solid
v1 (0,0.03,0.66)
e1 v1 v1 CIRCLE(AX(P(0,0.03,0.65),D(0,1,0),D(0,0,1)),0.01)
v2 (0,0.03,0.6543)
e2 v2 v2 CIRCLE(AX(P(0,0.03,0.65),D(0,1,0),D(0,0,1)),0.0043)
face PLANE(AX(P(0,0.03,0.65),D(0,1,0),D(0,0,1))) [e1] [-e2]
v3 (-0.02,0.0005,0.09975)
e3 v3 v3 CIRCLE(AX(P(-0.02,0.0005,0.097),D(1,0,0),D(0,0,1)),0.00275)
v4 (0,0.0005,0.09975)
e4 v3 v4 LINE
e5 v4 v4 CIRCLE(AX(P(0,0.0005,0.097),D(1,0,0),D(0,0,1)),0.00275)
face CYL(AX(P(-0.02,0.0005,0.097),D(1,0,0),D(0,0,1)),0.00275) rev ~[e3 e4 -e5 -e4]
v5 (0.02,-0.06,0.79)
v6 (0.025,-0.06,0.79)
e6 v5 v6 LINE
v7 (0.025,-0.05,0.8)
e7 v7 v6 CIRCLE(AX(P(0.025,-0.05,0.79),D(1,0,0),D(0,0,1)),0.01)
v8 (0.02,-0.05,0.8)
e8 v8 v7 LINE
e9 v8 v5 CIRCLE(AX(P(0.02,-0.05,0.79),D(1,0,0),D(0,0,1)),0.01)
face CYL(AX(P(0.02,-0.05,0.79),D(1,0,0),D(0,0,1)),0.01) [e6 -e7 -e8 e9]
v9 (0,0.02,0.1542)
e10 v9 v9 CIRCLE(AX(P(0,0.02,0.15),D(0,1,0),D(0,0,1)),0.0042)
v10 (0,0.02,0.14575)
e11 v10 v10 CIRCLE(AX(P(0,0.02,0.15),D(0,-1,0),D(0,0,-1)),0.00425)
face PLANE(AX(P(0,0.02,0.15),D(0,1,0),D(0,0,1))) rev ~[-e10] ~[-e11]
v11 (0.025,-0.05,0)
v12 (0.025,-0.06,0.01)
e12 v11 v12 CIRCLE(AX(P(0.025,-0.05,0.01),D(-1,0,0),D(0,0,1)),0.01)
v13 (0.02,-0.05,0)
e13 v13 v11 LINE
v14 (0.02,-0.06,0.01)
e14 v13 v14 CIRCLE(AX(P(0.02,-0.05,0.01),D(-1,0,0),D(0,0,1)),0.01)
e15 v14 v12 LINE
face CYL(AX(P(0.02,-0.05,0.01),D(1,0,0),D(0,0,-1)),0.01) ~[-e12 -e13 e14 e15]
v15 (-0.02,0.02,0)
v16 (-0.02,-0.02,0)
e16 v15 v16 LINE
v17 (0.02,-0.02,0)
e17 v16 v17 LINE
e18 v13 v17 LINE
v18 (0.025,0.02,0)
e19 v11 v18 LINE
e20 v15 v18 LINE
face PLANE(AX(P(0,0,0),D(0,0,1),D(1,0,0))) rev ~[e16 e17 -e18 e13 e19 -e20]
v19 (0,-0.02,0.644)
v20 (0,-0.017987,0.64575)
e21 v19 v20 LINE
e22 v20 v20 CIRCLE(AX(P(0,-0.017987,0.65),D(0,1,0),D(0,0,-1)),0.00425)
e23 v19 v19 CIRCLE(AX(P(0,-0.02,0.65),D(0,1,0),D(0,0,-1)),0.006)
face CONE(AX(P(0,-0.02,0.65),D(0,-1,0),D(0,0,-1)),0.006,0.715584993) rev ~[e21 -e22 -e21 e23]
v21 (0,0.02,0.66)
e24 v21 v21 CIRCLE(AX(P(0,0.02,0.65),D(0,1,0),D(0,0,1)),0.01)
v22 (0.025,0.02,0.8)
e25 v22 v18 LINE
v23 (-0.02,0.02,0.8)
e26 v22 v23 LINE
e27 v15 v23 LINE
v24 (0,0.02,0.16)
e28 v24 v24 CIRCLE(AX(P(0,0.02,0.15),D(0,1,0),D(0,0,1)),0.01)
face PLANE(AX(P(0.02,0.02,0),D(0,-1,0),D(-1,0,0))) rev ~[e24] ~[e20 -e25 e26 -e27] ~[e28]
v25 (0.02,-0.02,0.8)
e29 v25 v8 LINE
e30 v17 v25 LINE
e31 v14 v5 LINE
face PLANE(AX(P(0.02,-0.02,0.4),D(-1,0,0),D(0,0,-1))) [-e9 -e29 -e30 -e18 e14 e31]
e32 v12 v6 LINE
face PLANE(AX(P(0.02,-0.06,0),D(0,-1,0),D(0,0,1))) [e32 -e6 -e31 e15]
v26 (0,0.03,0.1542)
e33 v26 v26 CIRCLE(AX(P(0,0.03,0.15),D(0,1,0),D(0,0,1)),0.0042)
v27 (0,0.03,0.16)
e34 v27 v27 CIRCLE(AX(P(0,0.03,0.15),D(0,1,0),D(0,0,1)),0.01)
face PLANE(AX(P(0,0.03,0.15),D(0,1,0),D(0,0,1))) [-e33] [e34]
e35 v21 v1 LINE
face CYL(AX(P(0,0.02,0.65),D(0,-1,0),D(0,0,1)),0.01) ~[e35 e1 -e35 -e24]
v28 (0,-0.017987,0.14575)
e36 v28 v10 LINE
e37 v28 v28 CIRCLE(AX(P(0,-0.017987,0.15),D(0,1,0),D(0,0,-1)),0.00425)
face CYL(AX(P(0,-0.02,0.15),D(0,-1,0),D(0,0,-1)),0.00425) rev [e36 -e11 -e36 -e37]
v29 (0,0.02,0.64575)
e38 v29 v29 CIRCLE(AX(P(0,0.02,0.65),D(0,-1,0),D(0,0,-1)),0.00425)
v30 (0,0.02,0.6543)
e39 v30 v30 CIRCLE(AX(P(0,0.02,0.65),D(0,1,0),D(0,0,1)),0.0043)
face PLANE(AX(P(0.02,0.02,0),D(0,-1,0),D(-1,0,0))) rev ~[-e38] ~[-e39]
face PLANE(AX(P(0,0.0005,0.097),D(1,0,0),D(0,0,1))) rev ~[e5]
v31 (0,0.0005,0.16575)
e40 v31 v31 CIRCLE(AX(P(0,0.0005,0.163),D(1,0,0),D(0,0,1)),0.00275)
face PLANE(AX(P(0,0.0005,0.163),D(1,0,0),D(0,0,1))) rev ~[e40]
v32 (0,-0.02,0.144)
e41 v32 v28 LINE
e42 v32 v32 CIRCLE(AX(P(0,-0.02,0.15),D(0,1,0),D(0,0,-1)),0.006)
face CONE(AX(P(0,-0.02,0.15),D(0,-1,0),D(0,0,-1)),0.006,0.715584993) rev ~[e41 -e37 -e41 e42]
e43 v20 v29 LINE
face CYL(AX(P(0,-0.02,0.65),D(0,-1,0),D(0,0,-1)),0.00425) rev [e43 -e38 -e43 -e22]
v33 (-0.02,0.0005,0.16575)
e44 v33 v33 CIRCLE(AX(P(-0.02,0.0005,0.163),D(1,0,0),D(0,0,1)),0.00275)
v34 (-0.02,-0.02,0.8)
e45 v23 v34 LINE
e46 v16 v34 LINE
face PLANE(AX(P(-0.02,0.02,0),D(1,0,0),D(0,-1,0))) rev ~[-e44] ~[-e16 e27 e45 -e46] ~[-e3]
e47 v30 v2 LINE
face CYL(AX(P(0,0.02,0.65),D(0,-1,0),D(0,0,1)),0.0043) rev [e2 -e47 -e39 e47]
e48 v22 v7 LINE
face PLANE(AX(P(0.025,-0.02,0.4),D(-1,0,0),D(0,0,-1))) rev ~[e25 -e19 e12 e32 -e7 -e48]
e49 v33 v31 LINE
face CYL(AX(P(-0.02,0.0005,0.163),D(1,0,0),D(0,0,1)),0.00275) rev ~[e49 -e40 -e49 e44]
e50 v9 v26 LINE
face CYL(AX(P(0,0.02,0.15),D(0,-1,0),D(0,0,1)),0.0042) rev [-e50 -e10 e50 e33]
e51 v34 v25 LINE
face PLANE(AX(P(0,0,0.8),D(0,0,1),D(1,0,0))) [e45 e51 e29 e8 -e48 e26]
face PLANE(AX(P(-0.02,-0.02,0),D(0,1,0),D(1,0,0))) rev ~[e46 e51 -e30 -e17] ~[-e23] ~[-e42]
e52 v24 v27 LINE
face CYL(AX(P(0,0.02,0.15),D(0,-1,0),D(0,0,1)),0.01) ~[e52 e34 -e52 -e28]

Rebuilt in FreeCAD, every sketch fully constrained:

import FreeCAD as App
import Part
import Sketcher

V = App.Vector


def edges_at(feature, points):
    """Names of the edges that pass closest to the given points."""
    edges = feature.Shape.Edges
    near = lambda p: min(range(len(edges)), key=lambda i: edges[i].distToShape(Part.Vertex(*p))[0])
    return sorted({f"Edge{near(p) + 1}" for p in points})

doc = App.newDocument("Part")
body = doc.addObject("PartDesign::Body", "Body")

# Sketch on XY plane
sketch1 = body.newObject("Sketcher::SketchObject", "Sketch")
sketch1.AttachmentSupport = (doc.getObject("XY_Plane"), [""])
sketch1.MapMode = "FlatFace"
sketch1.addGeometry(Part.LineSegment(V(-0.02, 0.02, 0), V(-0.02, -0.02, 0)), False)
sketch1.addGeometry(Part.LineSegment(V(-0.02, -0.02, 0), V(0.02, -0.02, 0)), False)
sketch1.addGeometry(Part.LineSegment(V(0.02, -0.02, 0), V(0.02, 0.02, 0)), False)
sketch1.addGeometry(Part.LineSegment(V(0.02, 0.02, 0), V(-0.02, 0.02, 0)), False)
sketch1.addConstraint(Sketcher.Constraint("Coincident", 0, 2, 1, 1))
sketch1.addConstraint(Sketcher.Constraint("Coincident", 1, 2, 2, 1))
sketch1.addConstraint(Sketcher.Constraint("Coincident", 2, 2, 3, 1))
sketch1.addConstraint(Sketcher.Constraint("Coincident", 3, 2, 0, 1))
sketch1.addConstraint(Sketcher.Constraint("Vertical", 0))
sketch1.addConstraint(Sketcher.Constraint("Horizontal", 1))
sketch1.addConstraint(Sketcher.Constraint("Vertical", 2))
sketch1.addConstraint(Sketcher.Constraint("Horizontal", 3))
sketch1.addConstraint(Sketcher.Constraint("Symmetric", 0, 2, 2, 2, -1, 1))
sketch1.addConstraint(Sketcher.Constraint("Equal", 3, 0))
sketch1.addConstraint(Sketcher.Constraint("DistanceX", 0, 2, -1, 1, 0.02))
pad1 = body.newObject("PartDesign::Pad", "Pad")
pad1.Profile = sketch1
pad1.Length = 0.8

# Sketch on YZ plane
sketch2 = body.newObject("Sketcher::SketchObject", "Sketch001")
sketch2.AttachmentSupport = (doc.getObject("YZ_Plane"), [""])
sketch2.MapMode = "FlatFace"
sketch2.AttachmentOffset = App.Placement(V(0, 0, 0.02), App.Rotation())
sketch2.addGeometry(Part.LineSegment(V(0.02, 0, 0), V(0.02, 0.8, 0)), False)
sketch2.addGeometry(Part.LineSegment(V(0.02, 0.8, 0), V(-0.06, 0.8, 0)), False)
sketch2.addGeometry(Part.LineSegment(V(-0.06, 0.8, 0), V(-0.06, 0, 0)), False)
sketch2.addGeometry(Part.LineSegment(V(-0.06, 0, 0), V(0.02, 0, 0)), False)
sketch2.addConstraint(Sketcher.Constraint("Coincident", 0, 2, 1, 1))
sketch2.addConstraint(Sketcher.Constraint("Coincident", 1, 2, 2, 1))
sketch2.addConstraint(Sketcher.Constraint("Coincident", 2, 2, 3, 1))
sketch2.addConstraint(Sketcher.Constraint("Coincident", 3, 2, 0, 1))
sketch2.addConstraint(Sketcher.Constraint("Vertical", 0))
sketch2.addConstraint(Sketcher.Constraint("Horizontal", 1))
sketch2.addConstraint(Sketcher.Constraint("Vertical", 2))
sketch2.addConstraint(Sketcher.Constraint("Horizontal", 3))
sketch2.addConstraint(Sketcher.Constraint("PointOnObject", 2, 2, -1))
sketch2.addConstraint(Sketcher.Constraint("DistanceY", 0, 1, 0, 2, 0.8))
sketch2.addConstraint(Sketcher.Constraint("DistanceX", 1, 2, 1, 1, 0.08))
sketch2.addConstraint(Sketcher.Constraint("DistanceX", -1, 1, 0, 2, 0.02))
pad2 = body.newObject("PartDesign::Pad", "Pad001")
pad2.Profile = sketch2
pad2.Length = 0.005
doc.recompute()

fillet = body.newObject("PartDesign::Fillet", "Fillet")
fillet.Base = (pad2, edges_at(pad2, [(0.022, -0.06, 0), (0.022, -0.06, 0.8)]))
fillet.Radius = 0.01

# Sketch on XZ plane
sketch3 = body.newObject("Sketcher::SketchObject", "Sketch002")
sketch3.AttachmentSupport = (doc.getObject("XZ_Plane"), [""])
sketch3.MapMode = "FlatFace"
sketch3.AttachmentOffset = App.Placement(V(0, 0, 0.02), App.Rotation())
sketch3.addGeometry(Part.Circle(V(0, 0.65, 0), V(0, 0, 1), 0.00425), False)
sketch3.addConstraint(Sketcher.Constraint("PointOnObject", 0, 3, -2))
sketch3.addConstraint(Sketcher.Constraint("Diameter", 0, 0.0085))
sketch3.addConstraint(Sketcher.Constraint("DistanceY", -1, 1, 0, 3, 0.65))
doc.recompute()
hole = body.newObject("PartDesign::Hole", "Hole")
hole.Profile = sketch3
hole.ThreadType = "None"
hole.Diameter = 0.0085
hole.DepthType = "ThroughAll"
hole.HoleCutType = "Countersink"
hole.HoleCutDiameter = 0.012
hole.HoleCutCountersinkAngle = 82

# Sketch on XZ plane
sketch4 = body.newObject("Sketcher::SketchObject", "Sketch003")
sketch4.AttachmentSupport = (doc.getObject("XZ_Plane"), [""])
sketch4.MapMode = "FlatFace"
sketch4.AttachmentOffset = App.Placement(V(0, 0, 0.02), App.Rotation())
sketch4.addGeometry(Part.Circle(V(0, 0.15, 0), V(0, 0, 1), 0.00425), False)
sketch4.addConstraint(Sketcher.Constraint("PointOnObject", 0, 3, -2))
sketch4.addConstraint(Sketcher.Constraint("Diameter", 0, 0.0085))
sketch4.addConstraint(Sketcher.Constraint("DistanceY", -1, 1, 0, 3, 0.15))
doc.recompute()
hole2 = body.newObject("PartDesign::Hole", "Hole001")
hole2.Profile = sketch4
hole2.ThreadType = "None"
hole2.Diameter = 0.0085
hole2.DepthType = "ThroughAll"
hole2.HoleCutType = "Countersink"
hole2.HoleCutDiameter = 0.012
hole2.HoleCutCountersinkAngle = 82

# Sketch on XZ plane
sketch5 = body.newObject("Sketcher::SketchObject", "Sketch004")
sketch5.AttachmentSupport = (doc.getObject("XZ_Plane"), [""])
sketch5.MapMode = "FlatFace"
sketch5.AttachmentOffset = App.Placement(V(0, 0, -0.02), App.Rotation())
sketch5.addGeometry(Part.Circle(V(0, 0.15, 0), V(0, 0, 1), 0.01), False)
sketch5.addGeometry(Part.Circle(V(0, 0.15, 0), V(0, 0, 1), 0.0042), False)
sketch5.addGeometry(Part.Circle(V(0, 0.65, 0), V(0, 0, 1), 0.01), False)
sketch5.addGeometry(Part.Circle(V(0, 0.65, 0), V(0, 0, 1), 0.0043), False)
sketch5.addConstraint(Sketcher.Constraint("Coincident", 1, 3, 0, 3))
sketch5.addConstraint(Sketcher.Constraint("Coincident", 3, 3, 2, 3))
sketch5.addConstraint(Sketcher.Constraint("Equal", 0, 2))
sketch5.addConstraint(Sketcher.Constraint("Equal", 1, 3))
sketch5.addConstraint(Sketcher.Constraint("PointOnObject", 0, 3, -2))
sketch5.addConstraint(Sketcher.Constraint("PointOnObject", 2, 3, -2))
sketch5.addConstraint(Sketcher.Constraint("Diameter", 0, 0.02))
sketch5.addConstraint(Sketcher.Constraint("Diameter", 1, 0.0084))
sketch5.addConstraint(Sketcher.Constraint("DistanceY", 0, 3, 2, 3, 0.5))
sketch5.addConstraint(Sketcher.Constraint("DistanceY", -1, 1, 0, 3, 0.15))
pad3 = body.newObject("PartDesign::Pad", "Pad002")
pad3.Profile = sketch5
pad3.Length = 0.01
pad3.Reversed = True

# Sketch on YZ plane
sketch6 = body.newObject("Sketcher::SketchObject", "Sketch005")
sketch6.AttachmentSupport = (doc.getObject("YZ_Plane"), [""])
sketch6.MapMode = "FlatFace"
sketch6.AttachmentOffset = App.Placement(V(0, 0, -0.02), App.Rotation())
sketch6.addGeometry(Part.Circle(V(0.0005, 0.097, 0), V(0, 0, 1), 0.00275), False)
sketch6.addConstraint(Sketcher.Constraint("Diameter", 0, 0.0055))
sketch6.addConstraint(Sketcher.Constraint("DistanceY", -1, 1, 0, 3, 0.097))
sketch6.addConstraint(Sketcher.Constraint("DistanceX", -1, 1, 0, 3, 0.0005))
doc.recompute()
hole3 = body.newObject("PartDesign::Hole", "Hole002")
hole3.Profile = sketch6
hole3.ThreadType = "None"
hole3.Diameter = 0.0055
hole3.DepthType = "Dimension"
hole3.Depth = 0.02
hole3.DrillPoint = "Flat"
hole3.Reversed = True

# Sketch on YZ plane
sketch7 = body.newObject("Sketcher::SketchObject", "Sketch006")
sketch7.AttachmentSupport = (doc.getObject("YZ_Plane"), [""])
sketch7.MapMode = "FlatFace"
sketch7.AttachmentOffset = App.Placement(V(0, 0, -0.02), App.Rotation())
sketch7.addGeometry(Part.Circle(V(0.0005, 0.163, 0), V(0, 0, 1), 0.00275), False)
sketch7.addConstraint(Sketcher.Constraint("Diameter", 0, 0.0055))
sketch7.addConstraint(Sketcher.Constraint("DistanceY", -1, 1, 0, 3, 0.163))
sketch7.addConstraint(Sketcher.Constraint("DistanceX", -1, 1, 0, 3, 0.0005))
doc.recompute()
hole4 = body.newObject("PartDesign::Hole", "Hole003")
hole4.Profile = sketch7
hole4.ThreadType = "None"
hole4.Diameter = 0.0055
hole4.DepthType = "Dimension"
hole4.Depth = 0.02
hole4.DrillPoint = "Flat"
hole4.Reversed = True

doc.recompute()
